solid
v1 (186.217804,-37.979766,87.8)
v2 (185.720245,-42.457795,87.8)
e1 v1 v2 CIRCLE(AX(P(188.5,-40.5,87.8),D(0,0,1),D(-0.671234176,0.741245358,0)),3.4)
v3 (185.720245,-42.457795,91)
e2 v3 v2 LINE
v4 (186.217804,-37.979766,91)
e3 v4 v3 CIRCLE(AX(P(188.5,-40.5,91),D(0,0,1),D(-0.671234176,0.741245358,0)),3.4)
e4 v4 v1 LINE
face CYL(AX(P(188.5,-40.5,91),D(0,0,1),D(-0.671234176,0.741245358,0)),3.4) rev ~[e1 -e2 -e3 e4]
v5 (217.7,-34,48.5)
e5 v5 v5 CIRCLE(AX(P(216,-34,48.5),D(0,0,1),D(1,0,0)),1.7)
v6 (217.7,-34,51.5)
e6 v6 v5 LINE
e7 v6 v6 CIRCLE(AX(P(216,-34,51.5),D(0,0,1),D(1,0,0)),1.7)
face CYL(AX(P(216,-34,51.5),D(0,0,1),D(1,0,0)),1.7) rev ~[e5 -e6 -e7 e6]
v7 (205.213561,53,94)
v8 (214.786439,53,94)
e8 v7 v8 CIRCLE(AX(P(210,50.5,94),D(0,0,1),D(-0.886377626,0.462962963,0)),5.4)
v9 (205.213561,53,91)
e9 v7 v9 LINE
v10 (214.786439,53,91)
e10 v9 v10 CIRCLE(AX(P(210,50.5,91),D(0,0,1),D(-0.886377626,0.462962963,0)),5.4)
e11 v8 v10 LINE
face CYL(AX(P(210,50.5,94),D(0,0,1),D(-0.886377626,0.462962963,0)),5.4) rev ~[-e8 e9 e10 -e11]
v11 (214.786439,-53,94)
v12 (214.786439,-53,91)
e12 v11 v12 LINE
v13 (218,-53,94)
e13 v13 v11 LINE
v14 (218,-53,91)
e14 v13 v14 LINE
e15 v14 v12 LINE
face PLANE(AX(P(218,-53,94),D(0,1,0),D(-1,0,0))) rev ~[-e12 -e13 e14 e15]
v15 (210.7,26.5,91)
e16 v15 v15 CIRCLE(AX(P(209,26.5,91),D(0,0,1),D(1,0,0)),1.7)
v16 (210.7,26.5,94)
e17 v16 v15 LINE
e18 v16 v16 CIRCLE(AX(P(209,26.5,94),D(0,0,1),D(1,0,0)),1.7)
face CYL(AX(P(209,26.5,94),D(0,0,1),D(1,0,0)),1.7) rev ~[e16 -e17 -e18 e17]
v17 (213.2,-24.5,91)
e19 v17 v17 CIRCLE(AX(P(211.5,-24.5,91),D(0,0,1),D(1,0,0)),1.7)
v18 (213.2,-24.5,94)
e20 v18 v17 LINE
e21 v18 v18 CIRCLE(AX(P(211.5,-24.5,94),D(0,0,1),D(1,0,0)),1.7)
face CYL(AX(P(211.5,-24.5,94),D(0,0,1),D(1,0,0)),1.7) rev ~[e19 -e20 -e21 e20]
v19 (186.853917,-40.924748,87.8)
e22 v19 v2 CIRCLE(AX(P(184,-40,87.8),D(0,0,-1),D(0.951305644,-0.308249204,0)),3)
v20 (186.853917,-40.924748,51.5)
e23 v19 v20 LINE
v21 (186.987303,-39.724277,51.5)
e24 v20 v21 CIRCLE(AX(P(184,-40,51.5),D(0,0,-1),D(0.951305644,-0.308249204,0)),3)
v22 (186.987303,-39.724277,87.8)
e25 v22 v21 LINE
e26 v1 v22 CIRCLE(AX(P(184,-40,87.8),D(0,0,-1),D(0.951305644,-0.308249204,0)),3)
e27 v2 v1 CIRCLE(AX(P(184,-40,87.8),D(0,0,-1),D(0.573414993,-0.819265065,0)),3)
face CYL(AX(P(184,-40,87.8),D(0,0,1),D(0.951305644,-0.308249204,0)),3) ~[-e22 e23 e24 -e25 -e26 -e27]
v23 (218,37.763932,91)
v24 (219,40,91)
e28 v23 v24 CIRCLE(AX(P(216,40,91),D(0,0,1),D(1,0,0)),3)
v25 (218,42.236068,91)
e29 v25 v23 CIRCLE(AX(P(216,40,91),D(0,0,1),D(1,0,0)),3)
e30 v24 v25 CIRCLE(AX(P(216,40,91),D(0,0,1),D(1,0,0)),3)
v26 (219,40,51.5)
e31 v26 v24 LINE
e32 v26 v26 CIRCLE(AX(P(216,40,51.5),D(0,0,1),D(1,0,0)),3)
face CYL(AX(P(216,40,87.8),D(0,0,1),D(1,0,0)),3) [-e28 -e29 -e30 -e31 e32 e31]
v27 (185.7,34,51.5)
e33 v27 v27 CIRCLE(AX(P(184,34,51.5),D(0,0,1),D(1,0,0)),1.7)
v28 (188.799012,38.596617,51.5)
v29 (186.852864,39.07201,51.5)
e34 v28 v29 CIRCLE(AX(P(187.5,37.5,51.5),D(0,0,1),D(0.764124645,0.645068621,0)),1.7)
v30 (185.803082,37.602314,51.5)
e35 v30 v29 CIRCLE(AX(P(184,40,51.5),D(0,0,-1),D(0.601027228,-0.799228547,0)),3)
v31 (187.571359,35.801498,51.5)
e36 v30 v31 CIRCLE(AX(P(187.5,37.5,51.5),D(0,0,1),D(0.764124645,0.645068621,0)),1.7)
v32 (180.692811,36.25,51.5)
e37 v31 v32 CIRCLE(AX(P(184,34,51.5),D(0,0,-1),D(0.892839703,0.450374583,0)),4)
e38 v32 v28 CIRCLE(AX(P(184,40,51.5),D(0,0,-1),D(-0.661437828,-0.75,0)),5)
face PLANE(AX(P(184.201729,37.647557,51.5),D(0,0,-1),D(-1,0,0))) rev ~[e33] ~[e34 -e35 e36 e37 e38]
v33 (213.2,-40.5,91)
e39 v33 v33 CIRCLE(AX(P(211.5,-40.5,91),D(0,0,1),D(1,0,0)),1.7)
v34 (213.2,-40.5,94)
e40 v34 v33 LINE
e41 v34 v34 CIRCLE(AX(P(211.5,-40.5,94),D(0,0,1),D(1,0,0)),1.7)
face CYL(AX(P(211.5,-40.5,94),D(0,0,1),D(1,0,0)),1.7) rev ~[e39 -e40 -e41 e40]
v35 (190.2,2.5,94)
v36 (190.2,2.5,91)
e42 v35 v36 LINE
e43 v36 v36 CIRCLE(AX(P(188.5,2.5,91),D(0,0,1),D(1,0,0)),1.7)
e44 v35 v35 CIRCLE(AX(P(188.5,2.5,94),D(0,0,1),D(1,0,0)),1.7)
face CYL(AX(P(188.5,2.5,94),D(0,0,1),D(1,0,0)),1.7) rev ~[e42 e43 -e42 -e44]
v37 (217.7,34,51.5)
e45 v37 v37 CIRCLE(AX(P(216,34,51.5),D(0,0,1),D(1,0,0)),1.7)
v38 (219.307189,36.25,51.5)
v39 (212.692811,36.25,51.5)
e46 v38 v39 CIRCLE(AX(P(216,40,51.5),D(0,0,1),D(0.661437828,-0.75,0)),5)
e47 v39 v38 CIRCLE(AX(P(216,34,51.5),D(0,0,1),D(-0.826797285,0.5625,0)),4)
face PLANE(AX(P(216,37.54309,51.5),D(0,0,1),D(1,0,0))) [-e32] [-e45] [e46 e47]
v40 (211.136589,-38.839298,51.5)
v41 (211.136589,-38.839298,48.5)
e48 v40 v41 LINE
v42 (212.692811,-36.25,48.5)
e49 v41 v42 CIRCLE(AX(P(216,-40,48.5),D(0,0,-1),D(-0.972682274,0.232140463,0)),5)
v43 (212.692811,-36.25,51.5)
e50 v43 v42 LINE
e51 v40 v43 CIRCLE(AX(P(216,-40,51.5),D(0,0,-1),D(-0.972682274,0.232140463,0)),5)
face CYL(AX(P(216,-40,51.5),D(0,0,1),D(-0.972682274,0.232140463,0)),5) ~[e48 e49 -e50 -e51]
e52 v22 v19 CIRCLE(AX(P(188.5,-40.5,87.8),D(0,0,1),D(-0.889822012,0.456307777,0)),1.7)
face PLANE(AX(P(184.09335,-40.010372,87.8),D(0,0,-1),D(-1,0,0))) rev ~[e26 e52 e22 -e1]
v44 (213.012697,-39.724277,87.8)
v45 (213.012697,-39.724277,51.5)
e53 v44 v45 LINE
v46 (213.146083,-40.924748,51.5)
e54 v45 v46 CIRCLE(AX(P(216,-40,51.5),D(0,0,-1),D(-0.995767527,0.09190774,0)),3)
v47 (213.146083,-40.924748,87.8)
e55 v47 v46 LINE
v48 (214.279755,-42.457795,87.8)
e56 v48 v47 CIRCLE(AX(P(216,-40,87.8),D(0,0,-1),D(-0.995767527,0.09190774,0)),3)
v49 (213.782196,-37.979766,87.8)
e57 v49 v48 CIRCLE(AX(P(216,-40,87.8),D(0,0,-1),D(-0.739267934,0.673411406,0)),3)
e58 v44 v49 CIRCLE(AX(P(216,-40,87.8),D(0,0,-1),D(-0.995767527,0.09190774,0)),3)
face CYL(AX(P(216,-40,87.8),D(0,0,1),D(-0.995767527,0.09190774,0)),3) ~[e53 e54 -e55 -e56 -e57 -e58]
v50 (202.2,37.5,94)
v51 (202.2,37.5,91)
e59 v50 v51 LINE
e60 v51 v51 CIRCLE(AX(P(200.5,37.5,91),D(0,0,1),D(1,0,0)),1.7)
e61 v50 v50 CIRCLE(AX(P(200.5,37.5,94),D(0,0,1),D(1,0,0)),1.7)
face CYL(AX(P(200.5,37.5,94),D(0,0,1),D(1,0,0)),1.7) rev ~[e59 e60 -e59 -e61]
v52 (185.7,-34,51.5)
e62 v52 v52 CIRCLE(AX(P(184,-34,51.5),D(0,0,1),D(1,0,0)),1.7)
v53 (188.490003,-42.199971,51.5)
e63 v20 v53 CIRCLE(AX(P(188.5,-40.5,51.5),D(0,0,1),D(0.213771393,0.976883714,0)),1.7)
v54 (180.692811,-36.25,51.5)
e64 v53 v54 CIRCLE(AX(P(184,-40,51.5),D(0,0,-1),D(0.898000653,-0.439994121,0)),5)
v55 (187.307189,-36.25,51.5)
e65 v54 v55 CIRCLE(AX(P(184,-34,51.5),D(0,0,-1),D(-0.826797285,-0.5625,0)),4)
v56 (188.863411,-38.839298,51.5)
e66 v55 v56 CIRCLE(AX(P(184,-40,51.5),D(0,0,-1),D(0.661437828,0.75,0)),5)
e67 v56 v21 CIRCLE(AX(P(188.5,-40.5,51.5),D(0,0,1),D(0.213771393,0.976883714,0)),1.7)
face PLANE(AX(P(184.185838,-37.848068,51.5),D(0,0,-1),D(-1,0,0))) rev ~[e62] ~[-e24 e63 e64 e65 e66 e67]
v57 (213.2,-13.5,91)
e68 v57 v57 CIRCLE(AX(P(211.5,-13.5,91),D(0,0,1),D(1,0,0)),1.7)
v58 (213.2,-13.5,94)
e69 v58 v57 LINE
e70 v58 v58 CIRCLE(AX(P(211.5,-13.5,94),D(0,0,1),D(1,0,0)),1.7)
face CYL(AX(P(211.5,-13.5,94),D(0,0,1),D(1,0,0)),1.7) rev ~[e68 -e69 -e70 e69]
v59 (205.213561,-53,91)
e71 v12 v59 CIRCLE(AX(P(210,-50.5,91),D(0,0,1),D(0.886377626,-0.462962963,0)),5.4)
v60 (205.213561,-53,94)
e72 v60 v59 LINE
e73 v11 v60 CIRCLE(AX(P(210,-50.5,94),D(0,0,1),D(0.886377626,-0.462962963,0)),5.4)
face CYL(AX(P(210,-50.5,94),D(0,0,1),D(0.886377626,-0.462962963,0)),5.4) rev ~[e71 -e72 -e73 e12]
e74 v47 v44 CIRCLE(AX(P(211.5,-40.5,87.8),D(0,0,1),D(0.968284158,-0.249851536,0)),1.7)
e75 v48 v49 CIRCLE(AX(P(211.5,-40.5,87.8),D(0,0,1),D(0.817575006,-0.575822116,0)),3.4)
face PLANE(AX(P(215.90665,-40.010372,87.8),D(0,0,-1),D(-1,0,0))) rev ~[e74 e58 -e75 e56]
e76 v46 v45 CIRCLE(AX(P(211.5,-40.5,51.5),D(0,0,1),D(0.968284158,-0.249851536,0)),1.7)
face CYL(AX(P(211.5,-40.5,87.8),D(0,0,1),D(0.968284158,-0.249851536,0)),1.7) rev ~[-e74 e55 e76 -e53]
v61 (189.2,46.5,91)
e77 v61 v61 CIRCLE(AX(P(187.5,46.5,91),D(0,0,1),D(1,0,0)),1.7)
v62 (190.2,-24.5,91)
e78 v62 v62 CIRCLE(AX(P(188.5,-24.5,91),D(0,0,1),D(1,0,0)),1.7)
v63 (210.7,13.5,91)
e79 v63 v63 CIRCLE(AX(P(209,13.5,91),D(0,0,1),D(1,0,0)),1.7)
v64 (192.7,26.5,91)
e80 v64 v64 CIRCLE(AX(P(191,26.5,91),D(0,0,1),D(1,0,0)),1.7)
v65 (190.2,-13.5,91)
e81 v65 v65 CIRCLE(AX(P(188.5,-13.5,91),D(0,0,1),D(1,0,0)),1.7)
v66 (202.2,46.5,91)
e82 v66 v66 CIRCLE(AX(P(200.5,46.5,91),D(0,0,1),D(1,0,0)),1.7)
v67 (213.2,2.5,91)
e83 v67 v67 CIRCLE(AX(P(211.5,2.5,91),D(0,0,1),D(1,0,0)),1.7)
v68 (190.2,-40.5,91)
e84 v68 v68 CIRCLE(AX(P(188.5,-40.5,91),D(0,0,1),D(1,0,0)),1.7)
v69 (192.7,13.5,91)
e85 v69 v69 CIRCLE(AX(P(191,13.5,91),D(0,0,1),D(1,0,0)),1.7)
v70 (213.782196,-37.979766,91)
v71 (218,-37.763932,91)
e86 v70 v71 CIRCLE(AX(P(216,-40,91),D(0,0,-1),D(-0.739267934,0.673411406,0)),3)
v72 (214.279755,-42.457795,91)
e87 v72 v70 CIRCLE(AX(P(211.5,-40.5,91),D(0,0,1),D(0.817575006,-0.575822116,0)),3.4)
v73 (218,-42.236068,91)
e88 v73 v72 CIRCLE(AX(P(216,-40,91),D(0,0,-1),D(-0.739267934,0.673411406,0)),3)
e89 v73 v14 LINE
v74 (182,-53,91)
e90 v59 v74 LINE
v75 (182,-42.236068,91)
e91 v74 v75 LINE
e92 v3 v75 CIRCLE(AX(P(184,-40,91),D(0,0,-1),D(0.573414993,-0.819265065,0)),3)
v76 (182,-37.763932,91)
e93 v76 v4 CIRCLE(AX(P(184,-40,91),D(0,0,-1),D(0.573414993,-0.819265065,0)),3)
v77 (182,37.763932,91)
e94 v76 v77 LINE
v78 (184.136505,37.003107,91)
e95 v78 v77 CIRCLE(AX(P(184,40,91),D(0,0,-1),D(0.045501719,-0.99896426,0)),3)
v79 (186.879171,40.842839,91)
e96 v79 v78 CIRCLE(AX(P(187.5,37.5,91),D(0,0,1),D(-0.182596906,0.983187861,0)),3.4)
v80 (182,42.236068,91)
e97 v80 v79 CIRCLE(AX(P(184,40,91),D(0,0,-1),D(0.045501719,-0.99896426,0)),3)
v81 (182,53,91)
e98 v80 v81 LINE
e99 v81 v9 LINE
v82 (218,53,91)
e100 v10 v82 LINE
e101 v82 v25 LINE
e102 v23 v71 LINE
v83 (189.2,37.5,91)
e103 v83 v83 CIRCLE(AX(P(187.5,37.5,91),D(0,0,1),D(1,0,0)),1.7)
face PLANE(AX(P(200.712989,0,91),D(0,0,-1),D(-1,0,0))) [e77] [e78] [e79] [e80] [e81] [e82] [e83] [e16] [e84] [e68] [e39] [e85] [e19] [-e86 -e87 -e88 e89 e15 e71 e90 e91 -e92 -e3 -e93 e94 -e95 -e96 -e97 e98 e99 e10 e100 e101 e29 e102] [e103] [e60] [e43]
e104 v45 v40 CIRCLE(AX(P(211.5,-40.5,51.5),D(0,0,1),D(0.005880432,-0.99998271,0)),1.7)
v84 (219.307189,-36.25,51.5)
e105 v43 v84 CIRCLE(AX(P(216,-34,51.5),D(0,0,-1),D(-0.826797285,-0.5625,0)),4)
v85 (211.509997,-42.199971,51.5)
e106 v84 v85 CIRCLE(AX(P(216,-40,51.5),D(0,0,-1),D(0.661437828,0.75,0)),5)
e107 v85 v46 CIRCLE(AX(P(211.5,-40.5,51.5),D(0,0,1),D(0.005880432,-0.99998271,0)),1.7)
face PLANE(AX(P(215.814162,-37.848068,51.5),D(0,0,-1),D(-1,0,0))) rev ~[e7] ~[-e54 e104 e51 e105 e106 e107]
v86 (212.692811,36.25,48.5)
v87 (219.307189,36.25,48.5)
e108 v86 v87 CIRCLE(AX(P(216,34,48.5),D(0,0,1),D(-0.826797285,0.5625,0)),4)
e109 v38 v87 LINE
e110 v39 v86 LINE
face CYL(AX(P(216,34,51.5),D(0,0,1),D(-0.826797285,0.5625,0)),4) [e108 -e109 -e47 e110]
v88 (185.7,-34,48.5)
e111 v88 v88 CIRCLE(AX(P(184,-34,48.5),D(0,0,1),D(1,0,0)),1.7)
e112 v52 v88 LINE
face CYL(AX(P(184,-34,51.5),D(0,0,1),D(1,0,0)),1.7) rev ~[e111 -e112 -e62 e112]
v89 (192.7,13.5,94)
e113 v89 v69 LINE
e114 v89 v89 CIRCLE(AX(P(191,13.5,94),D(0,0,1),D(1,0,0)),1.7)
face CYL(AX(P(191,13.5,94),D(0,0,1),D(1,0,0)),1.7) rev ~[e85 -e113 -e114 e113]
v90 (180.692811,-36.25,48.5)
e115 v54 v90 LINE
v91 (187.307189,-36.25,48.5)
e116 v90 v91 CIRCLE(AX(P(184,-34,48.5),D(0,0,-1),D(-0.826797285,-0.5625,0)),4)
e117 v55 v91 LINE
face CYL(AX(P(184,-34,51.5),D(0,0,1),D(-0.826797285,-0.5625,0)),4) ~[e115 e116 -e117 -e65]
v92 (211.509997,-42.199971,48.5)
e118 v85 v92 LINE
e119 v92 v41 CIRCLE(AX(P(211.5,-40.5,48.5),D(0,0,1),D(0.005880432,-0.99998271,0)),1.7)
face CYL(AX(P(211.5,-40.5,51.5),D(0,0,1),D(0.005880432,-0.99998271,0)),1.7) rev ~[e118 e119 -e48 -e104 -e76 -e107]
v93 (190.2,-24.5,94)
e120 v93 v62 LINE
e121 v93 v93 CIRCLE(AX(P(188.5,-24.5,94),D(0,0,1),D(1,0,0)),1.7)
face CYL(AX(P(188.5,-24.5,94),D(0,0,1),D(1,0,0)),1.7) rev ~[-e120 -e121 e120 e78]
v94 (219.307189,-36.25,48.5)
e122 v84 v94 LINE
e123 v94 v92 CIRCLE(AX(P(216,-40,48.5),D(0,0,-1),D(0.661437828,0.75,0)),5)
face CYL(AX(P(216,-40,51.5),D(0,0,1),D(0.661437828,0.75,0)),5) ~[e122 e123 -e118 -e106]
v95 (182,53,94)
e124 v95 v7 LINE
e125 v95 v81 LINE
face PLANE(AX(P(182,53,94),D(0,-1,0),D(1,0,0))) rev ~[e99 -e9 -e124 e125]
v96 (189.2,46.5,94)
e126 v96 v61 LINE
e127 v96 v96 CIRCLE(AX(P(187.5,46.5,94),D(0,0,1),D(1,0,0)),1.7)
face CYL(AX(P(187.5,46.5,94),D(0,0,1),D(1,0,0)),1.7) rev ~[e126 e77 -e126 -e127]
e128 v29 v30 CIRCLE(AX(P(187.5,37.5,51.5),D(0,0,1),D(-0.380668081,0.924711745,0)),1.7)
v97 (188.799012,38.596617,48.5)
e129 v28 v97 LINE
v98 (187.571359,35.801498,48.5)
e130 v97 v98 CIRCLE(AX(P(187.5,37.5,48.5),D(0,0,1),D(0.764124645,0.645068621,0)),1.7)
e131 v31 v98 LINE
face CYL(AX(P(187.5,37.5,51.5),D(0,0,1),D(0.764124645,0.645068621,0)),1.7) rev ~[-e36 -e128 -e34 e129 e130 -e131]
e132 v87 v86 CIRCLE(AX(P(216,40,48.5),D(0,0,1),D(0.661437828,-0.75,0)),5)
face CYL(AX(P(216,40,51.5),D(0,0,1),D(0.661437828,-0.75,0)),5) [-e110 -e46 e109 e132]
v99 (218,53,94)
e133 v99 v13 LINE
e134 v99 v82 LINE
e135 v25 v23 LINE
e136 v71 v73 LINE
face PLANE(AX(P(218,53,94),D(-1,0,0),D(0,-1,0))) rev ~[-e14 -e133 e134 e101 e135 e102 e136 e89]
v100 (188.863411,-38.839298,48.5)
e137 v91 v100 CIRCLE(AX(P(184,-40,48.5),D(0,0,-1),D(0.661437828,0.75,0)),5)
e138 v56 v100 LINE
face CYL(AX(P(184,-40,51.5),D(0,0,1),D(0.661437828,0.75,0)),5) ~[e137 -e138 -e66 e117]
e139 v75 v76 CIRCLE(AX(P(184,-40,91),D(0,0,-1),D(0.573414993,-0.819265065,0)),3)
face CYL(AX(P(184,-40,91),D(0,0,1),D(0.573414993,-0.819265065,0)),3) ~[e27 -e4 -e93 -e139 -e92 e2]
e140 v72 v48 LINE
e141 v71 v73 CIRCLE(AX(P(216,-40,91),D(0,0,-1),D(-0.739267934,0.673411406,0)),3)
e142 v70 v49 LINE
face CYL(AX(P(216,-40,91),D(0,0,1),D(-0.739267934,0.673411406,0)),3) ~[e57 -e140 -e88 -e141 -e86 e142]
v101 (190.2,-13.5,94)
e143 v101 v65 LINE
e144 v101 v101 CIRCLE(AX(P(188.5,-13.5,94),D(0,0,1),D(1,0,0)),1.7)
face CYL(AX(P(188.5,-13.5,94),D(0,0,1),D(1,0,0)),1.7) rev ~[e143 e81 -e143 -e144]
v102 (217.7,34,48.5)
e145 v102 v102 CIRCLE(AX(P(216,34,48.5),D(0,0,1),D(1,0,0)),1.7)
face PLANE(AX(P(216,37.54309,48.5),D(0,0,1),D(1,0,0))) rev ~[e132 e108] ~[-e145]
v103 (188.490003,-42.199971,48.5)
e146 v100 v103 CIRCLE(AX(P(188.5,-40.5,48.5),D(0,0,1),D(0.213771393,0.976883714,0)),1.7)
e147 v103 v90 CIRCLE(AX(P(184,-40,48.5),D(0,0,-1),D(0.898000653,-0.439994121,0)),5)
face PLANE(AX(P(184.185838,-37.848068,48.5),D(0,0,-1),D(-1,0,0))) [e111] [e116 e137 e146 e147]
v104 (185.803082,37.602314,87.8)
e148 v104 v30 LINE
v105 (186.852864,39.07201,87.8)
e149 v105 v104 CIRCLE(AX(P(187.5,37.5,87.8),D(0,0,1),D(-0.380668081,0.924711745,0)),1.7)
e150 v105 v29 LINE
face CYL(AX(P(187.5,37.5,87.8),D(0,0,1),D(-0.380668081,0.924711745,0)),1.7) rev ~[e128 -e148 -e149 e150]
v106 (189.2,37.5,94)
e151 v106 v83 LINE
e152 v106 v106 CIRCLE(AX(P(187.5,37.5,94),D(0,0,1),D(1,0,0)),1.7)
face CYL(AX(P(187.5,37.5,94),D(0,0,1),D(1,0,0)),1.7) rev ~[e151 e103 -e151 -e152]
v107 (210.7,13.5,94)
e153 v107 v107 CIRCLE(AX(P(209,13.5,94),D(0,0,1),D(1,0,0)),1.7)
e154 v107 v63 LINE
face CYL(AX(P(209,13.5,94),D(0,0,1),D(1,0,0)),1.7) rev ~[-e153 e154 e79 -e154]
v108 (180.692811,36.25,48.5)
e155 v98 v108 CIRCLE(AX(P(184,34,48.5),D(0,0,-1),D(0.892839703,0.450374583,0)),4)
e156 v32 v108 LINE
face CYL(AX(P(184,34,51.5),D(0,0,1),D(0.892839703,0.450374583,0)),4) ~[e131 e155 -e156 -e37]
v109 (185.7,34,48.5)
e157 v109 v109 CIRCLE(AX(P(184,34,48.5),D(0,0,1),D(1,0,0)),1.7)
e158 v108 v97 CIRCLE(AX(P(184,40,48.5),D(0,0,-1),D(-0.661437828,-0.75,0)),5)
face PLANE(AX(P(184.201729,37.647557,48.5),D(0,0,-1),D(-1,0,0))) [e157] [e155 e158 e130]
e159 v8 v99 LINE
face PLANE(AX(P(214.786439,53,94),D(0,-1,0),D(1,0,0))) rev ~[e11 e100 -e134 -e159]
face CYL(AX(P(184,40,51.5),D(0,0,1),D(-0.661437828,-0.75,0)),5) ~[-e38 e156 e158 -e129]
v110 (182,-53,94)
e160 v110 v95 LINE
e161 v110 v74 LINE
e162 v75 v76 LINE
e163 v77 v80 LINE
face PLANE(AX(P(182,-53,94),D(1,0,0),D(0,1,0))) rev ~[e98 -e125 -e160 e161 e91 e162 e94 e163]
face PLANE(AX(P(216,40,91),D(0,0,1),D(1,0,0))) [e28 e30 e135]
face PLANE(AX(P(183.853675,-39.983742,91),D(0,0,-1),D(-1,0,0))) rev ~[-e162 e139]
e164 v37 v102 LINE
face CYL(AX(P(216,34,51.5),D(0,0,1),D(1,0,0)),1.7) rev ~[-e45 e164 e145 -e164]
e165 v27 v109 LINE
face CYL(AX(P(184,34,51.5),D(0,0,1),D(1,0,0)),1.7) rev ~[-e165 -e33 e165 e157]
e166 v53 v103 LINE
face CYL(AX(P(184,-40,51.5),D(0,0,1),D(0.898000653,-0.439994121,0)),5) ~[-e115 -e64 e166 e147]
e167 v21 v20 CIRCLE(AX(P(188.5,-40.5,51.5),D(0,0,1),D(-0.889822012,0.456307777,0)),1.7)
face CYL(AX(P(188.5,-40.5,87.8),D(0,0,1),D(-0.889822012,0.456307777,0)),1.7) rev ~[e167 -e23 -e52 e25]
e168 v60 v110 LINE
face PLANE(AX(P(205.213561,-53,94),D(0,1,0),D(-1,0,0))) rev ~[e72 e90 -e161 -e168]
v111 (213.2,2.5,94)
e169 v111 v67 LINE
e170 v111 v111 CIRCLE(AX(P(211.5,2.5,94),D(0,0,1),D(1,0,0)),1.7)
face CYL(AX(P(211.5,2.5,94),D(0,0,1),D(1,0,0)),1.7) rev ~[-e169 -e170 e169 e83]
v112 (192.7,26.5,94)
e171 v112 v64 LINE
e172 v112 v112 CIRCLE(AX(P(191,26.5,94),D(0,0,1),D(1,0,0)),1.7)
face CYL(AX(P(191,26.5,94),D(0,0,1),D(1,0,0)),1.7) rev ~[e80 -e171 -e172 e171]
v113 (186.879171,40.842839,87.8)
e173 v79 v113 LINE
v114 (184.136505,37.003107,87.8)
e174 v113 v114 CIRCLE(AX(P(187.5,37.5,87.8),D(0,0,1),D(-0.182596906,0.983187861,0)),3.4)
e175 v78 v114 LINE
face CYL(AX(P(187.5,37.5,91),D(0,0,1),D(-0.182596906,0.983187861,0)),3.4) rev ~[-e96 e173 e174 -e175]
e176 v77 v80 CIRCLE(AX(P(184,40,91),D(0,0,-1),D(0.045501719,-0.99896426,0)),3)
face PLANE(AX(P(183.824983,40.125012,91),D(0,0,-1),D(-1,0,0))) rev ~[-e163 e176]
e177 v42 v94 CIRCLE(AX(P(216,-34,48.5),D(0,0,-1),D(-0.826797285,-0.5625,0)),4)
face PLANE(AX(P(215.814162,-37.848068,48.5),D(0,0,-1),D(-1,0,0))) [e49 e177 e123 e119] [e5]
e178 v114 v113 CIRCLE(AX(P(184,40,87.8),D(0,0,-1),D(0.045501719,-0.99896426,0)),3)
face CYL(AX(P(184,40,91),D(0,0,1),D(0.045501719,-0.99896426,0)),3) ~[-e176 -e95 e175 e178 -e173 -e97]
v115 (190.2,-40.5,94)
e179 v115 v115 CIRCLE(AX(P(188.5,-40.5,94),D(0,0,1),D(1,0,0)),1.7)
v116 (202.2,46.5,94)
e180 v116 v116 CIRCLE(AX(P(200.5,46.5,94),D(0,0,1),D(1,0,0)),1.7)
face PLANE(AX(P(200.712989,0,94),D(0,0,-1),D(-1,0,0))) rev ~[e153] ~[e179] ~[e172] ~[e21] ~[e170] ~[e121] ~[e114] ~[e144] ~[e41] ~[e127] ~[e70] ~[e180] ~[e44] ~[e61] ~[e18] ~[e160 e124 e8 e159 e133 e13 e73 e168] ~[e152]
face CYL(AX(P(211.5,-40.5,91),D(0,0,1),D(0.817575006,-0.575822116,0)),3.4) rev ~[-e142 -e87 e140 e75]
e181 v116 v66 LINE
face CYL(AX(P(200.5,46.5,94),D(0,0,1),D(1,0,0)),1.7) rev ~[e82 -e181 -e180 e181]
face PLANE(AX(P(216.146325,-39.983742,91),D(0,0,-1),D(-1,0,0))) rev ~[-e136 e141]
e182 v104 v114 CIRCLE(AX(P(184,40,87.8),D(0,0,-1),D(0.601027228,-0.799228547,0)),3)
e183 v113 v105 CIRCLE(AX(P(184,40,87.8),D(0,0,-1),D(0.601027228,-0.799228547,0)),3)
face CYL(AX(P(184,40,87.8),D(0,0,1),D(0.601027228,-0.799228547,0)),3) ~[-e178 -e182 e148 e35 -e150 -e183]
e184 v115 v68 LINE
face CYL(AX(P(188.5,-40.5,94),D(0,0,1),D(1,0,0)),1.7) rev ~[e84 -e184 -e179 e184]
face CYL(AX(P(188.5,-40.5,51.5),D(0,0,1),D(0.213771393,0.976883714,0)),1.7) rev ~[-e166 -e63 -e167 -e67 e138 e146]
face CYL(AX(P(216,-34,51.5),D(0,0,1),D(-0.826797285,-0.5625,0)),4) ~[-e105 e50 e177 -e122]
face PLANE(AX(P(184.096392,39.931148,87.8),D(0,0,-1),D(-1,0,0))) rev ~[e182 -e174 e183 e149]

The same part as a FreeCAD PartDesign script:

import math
import FreeCAD as App
import Part
import Sketcher

doc = App.newDocument("Part")
params = doc.addObject("Spreadsheet::Sheet", "Params")
for row, (alias, value) in enumerate([
    ("sketch1_diameter", "3.4 mm"),
    ("sketch1_radius", "5.4 mm"),
    ("sketch1_height", "106 mm"),
    ("pad1_length", "3 mm"),
    ("sketch2_diameter", "6 mm"),
    ("sketch2_radius", "3.4 mm"),
    ("pad2_length", "3.2 mm"),
    ("sketch3_diameter", "6 mm"),
    ("sketch3_radius", "1.7 mm"),
    ("pad3_length", "36.3 mm"),
    ("sketch4_radius", "5 mm"),
    ("sketch4_radius2", "4 mm"),
    ("sketch4_diameter", "3.4 mm"),
    ("pad4_length", "3 mm"),
], start=1):
    params.set(f"A{row}", alias)
    params.set(f"B{row}", "=" + value)
    params.setAlias(f"B{row}", alias)

body = doc.addObject("PartDesign::Body", "Body")

sketch1 = doc.addObject("Sketcher::SketchObject", "Sketch")
body.addObject(sketch1)
sketch1.AttachmentSupport = (doc.XY_Plane, [""])
sketch1.MapMode = "FlatFace"
sketch1.AttachmentOffset = App.Placement(App.Vector(0, 0, 94), App.Rotation())
sketch1.addGeometry(Part.LineSegment(App.Vector(205.213561, 53, 0), App.Vector(182, 53, 0)), False)
sketch1.addGeometry(Part.LineSegment(App.Vector(182, 53, 0), App.Vector(182, -53, 0)), False)
sketch1.addGeometry(Part.LineSegment(App.Vector(182, -53, 0), App.Vector(205.213561, -53, 0)), False)
sketch1.addGeometry(Part.ArcOfCircle(Part.Circle(App.Vector(210, -50.5, 0), App.Vector(0, 0, 1), 5.4), math.radians(-27.578468), math.radians(207.578468)), False)
sketch1.addGeometry(Part.LineSegment(App.Vector(214.786439, -53, 0), App.Vector(218, -53, 0)), False)
sketch1.addGeometry(Part.LineSegment(App.Vector(218, -53, 0), App.Vector(218, 53, 0)), False)
sketch1.addGeometry(Part.LineSegment(App.Vector(218, 53, 0), App.Vector(214.786439, 53, 0)), False)
sketch1.addGeometry(Part.ArcOfCircle(Part.Circle(App.Vector(210, 50.5, 0), App.Vector(0, 0, 1), 5.4), math.radians(152.421532), math.radians(387.578468)), False)
sketch1.addGeometry(Part.Circle(App.Vector(211.5, -40.5, 0), App.Vector(0, 0, 1), 1.7), False)
sketch1.addGeometry(Part.Circle(App.Vector(211.5, -24.5, 0), App.Vector(0, 0, 1), 1.7), False)
sketch1.addGeometry(Part.Circle(App.Vector(211.5, -13.5, 0), App.Vector(0, 0, 1), 1.7), False)
sketch1.addGeometry(Part.Circle(App.Vector(211.5, 2.5, 0), App.Vector(0, 0, 1), 1.7), False)
sketch1.addGeometry(Part.Circle(App.Vector(188.5, -40.5, 0), App.Vector(0, 0, 1), 1.7), False)
sketch1.addGeometry(Part.Circle(App.Vector(188.5, -24.5, 0), App.Vector(0, 0, 1), 1.7), False)
sketch1.addGeometry(Part.Circle(App.Vector(188.5, -13.5, 0), App.Vector(0, 0, 1), 1.7), False)
sketch1.addGeometry(Part.Circle(App.Vector(188.5, 2.5, 0), App.Vector(0, 0, 1), 1.7), False)
sketch1.addGeometry(Part.Circle(App.Vector(209, 13.5, 0), App.Vector(0, 0, 1), 1.7), False)
sketch1.addGeometry(Part.Circle(App.Vector(209, 26.5, 0), App.Vector(0, 0, 1), 1.7), False)
sketch1.addGeometry(Part.Circle(App.Vector(200.5, 37.5, 0), App.Vector(0, 0, 1), 1.7), False)
sketch1.addGeometry(Part.Circle(App.Vector(200.5, 46.5, 0), App.Vector(0, 0, 1), 1.7), False)
sketch1.addGeometry(Part.Circle(App.Vector(191, 13.5, 0), App.Vector(0, 0, 1), 1.7), False)
sketch1.addGeometry(Part.Circle(App.Vector(191, 26.5, 0), App.Vector(0, 0, 1), 1.7), False)
sketch1.addGeometry(Part.Circle(App.Vector(187.5, 37.5, 0), App.Vector(0, 0, 1), 1.7), False)
sketch1.addGeometry(Part.Circle(App.Vector(187.5, 46.5, 0), App.Vector(0, 0, 1), 1.7), False)
sketch1.addConstraint(Sketcher.Constraint("Coincident", 0, 2, 1, 1))
sketch1.addConstraint(Sketcher.Constraint("Coincident", 1, 2, 2, 1))
sketch1.addConstraint(Sketcher.Constraint("Coincident", 2, 2, 3, 2))
sketch1.addConstraint(Sketcher.Constraint("Coincident", 3, 1, 4, 1))
sketch1.addConstraint(Sketcher.Constraint("Coincident", 4, 2, 5, 1))
sketch1.addConstraint(Sketcher.Constraint("Coincident", 5, 2, 6, 1))
sketch1.addConstraint(Sketcher.Constraint("Coincident", 6, 2, 7, 2))
sketch1.addConstraint(Sketcher.Constraint("Coincident", 7, 1, 0, 1))
sketch1.addConstraint(Sketcher.Constraint("Horizontal", 0))
sketch1.addConstraint(Sketcher.Constraint("Vertical", 1))
sketch1.addConstraint(Sketcher.Constraint("Horizontal", 2))
sketch1.addConstraint(Sketcher.Constraint("Horizontal", 4))
sketch1.addConstraint(Sketcher.Constraint("Vertical", 5))
sketch1.addConstraint(Sketcher.Constraint("Horizontal", 6))
sketch1.addConstraint(Sketcher.Constraint("Equal", 3, 7))
sketch1.addConstraint(Sketcher.Constraint("Equal", 8, 9))
sketch1.addConstraint(Sketcher.Constraint("Equal", 9, 10))
sketch1.addConstraint(Sketcher.Constraint("Equal", 10, 11))
sketch1.addConstraint(Sketcher.Constraint("Equal", 11, 12))
sketch1.addConstraint(Sketcher.Constraint("Equal", 12, 13))
sketch1.addConstraint(Sketcher.Constraint("Equal", 13, 14))
sketch1.addConstraint(Sketcher.Constraint("Equal", 14, 15))
sketch1.addConstraint(Sketcher.Constraint("Equal", 15, 16))
sketch1.addConstraint(Sketcher.Constraint("Equal", 16, 17))
sketch1.addConstraint(Sketcher.Constraint("Equal", 17, 18))
sketch1.addConstraint(Sketcher.Constraint("Equal", 18, 19))
sketch1.addConstraint(Sketcher.Constraint("Equal", 19, 20))
sketch1.addConstraint(Sketcher.Constraint("Equal", 20, 21))
sketch1.addConstraint(Sketcher.Constraint("Equal", 21, 22))
sketch1.addConstraint(Sketcher.Constraint("Equal", 22, 23))
sketch1.addConstraint(Sketcher.Constraint("Symmetric", 3, 3, 7, 3, -1))
sketch1.addConstraint(Sketcher.Constraint("Horizontal", 8, 3, 12, 3))
sketch1.addConstraint(Sketcher.Constraint("Horizontal", 9, 3, 13, 3))
sketch1.addConstraint(Sketcher.Constraint("Horizontal", 10, 3, 14, 3))
sketch1.addConstraint(Sketcher.Constraint("Horizontal", 11, 3, 15, 3))
sketch1.addConstraint(Sketcher.Constraint("Horizontal", 16, 3, 20, 3))
sketch1.addConstraint(Sketcher.Constraint("Horizontal", 17, 3, 21, 3))
sketch1.addConstraint(Sketcher.Constraint("Horizontal", 18, 3, 22, 3))
sketch1.addConstraint(Sketcher.Constraint("Horizontal", 19, 3, 23, 3))
sketch1.addConstraint(Sketcher.Constraint("Horizontal", 2, 2, 3, 1))
sketch1.addConstraint(Sketcher.Constraint("Horizontal", 0, 2, 5, 2))
sketch1.addConstraint(Sketcher.Constraint("Vertical", 8, 3, 9, 3))
sketch1.addConstraint(Sketcher.Constraint("Vertical", 9, 3, 10, 3))
sketch1.addConstraint(Sketcher.Constraint("Vertical", 10, 3, 11, 3))
sketch1.addConstraint(Sketcher.Constraint("Vertical", 12, 3, 13, 3))
sketch1.addConstraint(Sketcher.Constraint("Vertical", 13, 3, 14, 3))
sketch1.addConstraint(Sketcher.Constraint("Vertical", 14, 3, 15, 3))
sketch1.addConstraint(Sketcher.Constraint("Vertical", 16, 3, 17, 3))
sketch1.addConstraint(Sketcher.Constraint("Vertical", 18, 3, 19, 3))
sketch1.addConstraint(Sketcher.Constraint("Vertical", 20, 3, 21, 3))
sketch1.addConstraint(Sketcher.Constraint("Vertical", 22, 3, 23, 3))
sketch1.addConstraint(Sketcher.Constraint("Vertical", 3, 1, 6, 2))
sketch1.addConstraint(Sketcher.Constraint("Diameter", 8, 3.4))
sketch1.addConstraint(Sketcher.Constraint("Radius", 3, 5.4))
sketch1.addConstraint(Sketcher.Constraint("DistanceY", 1, 2, 1, 1, 106.0))
sketch1.addConstraint(Sketcher.Constraint("DistanceX", -1, 1, 3, 3, 210.0))
sketch1.addConstraint(Sketcher.Constraint("DistanceX", -1, 1, 16, 3, 209.0))
sketch1.addConstraint(Sketcher.Constraint("DistanceX", -1, 1, 20, 3, 191.0))
sketch1.addConstraint(Sketcher.Constraint("DistanceX", -1, 1, 0, 2, 182.0))
sketch1.addConstraint(Sketcher.Constraint("DistanceX", -1, 1, 4, 2, 218.0))
sketch1.addConstraint(Sketcher.Constraint("DistanceY", 3, 3, 7, 3, 101.0))
sketch1.addConstraint(Sketcher.Constraint("DistanceY", 3, 3, 8, 3, 10.0))
sketch1.addConstraint(Sketcher.Constraint("DistanceY", 8, 3, 9, 3, 16.0))
sketch1.addConstraint(Sketcher.Constraint("DistanceY", 9, 3, 10, 3, 11.0))
sketch1.addConstraint(Sketcher.Constraint("DistanceY", 10, 3, 11, 3, 16.0))
sketch1.addConstraint(Sketcher.Constraint("DistanceX", 12, 3, 8, 3, 23.0))
sketch1.addConstraint(Sketcher.Constraint("DistanceY", 11, 3, 16, 3, 11.0))
sketch1.addConstraint(Sketcher.Constraint("DistanceY", 16, 3, 17, 3, 13.0))
sketch1.addConstraint(Sketcher.Constraint("DistanceY", 17, 3, 18, 3, 11.0))
sketch1.addConstraint(Sketcher.Constraint("DistanceX", 18, 3, 11, 3, 11.0))
sketch1.addConstraint(Sketcher.Constraint("DistanceY", 18, 3, 19, 3, 9.0))
sketch1.addConstraint(Sketcher.Constraint("DistanceX", 22, 3, 18, 3, 13.0))
sketch1.addConstraint(Sketcher.Constraint("DistanceX", -1, 1, 8, 3, 211.5))
sketch1.setExpression("Constraints[52]", "Params.sketch1_diameter")
sketch1.setExpression("Constraints[53]", "Params.sketch1_radius")
sketch1.setExpression("Constraints[54]", "Params.sketch1_height")
pad1 = doc.addObject("PartDesign::Pad", "Pad")
body.addObject(pad1)
pad1.Profile = sketch1
pad1.setExpression("Length", "Params.pad1_length")
pad1.Reversed = True

sketch2 = doc.addObject("Sketcher::SketchObject", "Sketch001")
body.addObject(sketch2)
sketch2.AttachmentSupport = (doc.XY_Plane, [""])
sketch2.MapMode = "FlatFace"
sketch2.AttachmentOffset = App.Placement(App.Vector(0, 0, 91), App.Rotation())
sketch2.addGeometry(Part.Circle(App.Vector(216, 40, 0), App.Vector(0, 0, 1), 3), False)
sketch2.addGeometry(Part.ArcOfCircle(Part.Circle(App.Vector(187.5, 37.5, 0), App.Vector(0, 0, 1), 3.4), math.radians(100.521059), math.radians(188.403585)), False)
sketch2.addGeometry(Part.ArcOfCircle(Part.Circle(App.Vector(184, 40, 0), App.Vector(0, 0, 1), 3), math.radians(16.316688), math.radians(272.607957)), False)
sketch2.addGeometry(Part.ArcOfCircle(Part.Circle(App.Vector(188.5, -40.5, 0), App.Vector(0, 0, 1), 3.4), math.radians(132.162391), math.radians(215.157226)), False)
sketch2.addGeometry(Part.ArcOfCircle(Part.Circle(App.Vector(184, -40, 0), App.Vector(0, 0, 1), 3), math.radians(42.330908), math.radians(304.988709)), False)
sketch2.addGeometry(Part.ArcOfCircle(Part.Circle(App.Vector(211.5, -40.5, 0), App.Vector(0, 0, 1), 3.4), math.radians(-35.157226), math.radians(47.837609)), False)
sketch2.addGeometry(Part.ArcOfCircle(Part.Circle(App.Vector(216, -40, 0), App.Vector(0, 0, 1), 3), math.radians(-124.988709), math.radians(137.669092)), False)
sketch2.addConstraint(Sketcher.Constraint("Coincident", 1, 1, 2, 1))
sketch2.addConstraint(Sketcher.Constraint("Coincident", 2, 2, 1, 2))
sketch2.addConstraint(Sketcher.Constraint("Coincident", 3, 1, 4, 1))
sketch2.addConstraint(Sketcher.Constraint("Coincident", 4, 2, 3, 2))
sketch2.addConstraint(Sketcher.Constraint("Coincident", 5, 1, 6, 1))
sketch2.addConstraint(Sketcher.Constraint("Coincident", 6, 2, 5, 2))
sketch2.addConstraint(Sketcher.Constraint("Equal", 0, 2))
sketch2.addConstraint(Sketcher.Constraint("Equal", 1, 3))
sketch2.addConstraint(Sketcher.Constraint("Equal", 2, 4))
sketch2.addConstraint(Sketcher.Constraint("Equal", 3, 5))
sketch2.addConstraint(Sketcher.Constraint("Equal", 4, 6))
sketch2.addConstraint(Sketcher.Constraint("Symmetric", 2, 3, 4, 3, -1))
sketch2.addConstraint(Sketcher.Constraint("Symmetric", 0, 3, 6, 3, -1))
sketch2.addConstraint(Sketcher.Constraint("Horizontal", 0, 3, 2, 3))
sketch2.addConstraint(Sketcher.Constraint("Horizontal", 3, 3, 5, 3))
sketch2.addConstraint(Sketcher.Constraint("Horizontal", 4, 2, 5, 1))
sketch2.addConstraint(Sketcher.Constraint("Diameter", 0, 6.0))
sketch2.addConstraint(Sketcher.Constraint("Radius", 1, 3.4))
sketch2.addConstraint(Sketcher.Constraint("DistanceX", -1, 1, 0, 3, 216.0))
sketch2.addConstraint(Sketcher.Constraint("DistanceY", -1, 1, 0, 3, 40.0))
sketch2.addConstraint(Sketcher.Constraint("DistanceX", -1, 1, 2, 3, 184.0))
sketch2.addConstraint(Sketcher.Constraint("DistanceX", 1, 3, 3, 3, 1.0))
sketch2.addConstraint(Sketcher.Constraint("DistanceY", 3, 3, 1, 3, 78.0))
sketch2.addConstraint(Sketcher.Constraint("DistanceX", 3, 3, 5, 3, 23.0))
sketch2.addConstraint(Sketcher.Constraint("DistanceY", -1, 1, 1, 3, 37.5))
sketch2.setExpression("Constraints[16]", "Params.sketch2_diameter")
sketch2.setExpression("Constraints[17]", "Params.sketch2_radius")
pad2 = doc.addObject("PartDesign::Pad", "Pad001")
body.addObject(pad2)
pad2.Profile = sketch2
pad2.setExpression("Length", "Params.pad2_length")
pad2.Reversed = True

sketch3 = doc.addObject("Sketcher::SketchObject", "Sketch002")
body.addObject(sketch3)
sketch3.AttachmentSupport = (doc.XY_Plane, [""])
sketch3.MapMode = "FlatFace"
sketch3.AttachmentOffset = App.Placement(App.Vector(0, 0, 87.8), App.Rotation())
sketch3.addGeometry(Part.Circle(App.Vector(216, 40, 0), App.Vector(0, 0, 1), 3), False)
sketch3.addGeometry(Part.ArcOfCircle(Part.Circle(App.Vector(187.5, 37.5, 0), App.Vector(0, 0, 1), 1.7), math.radians(112.375071), math.radians(176.549573)), False)
sketch3.addGeometry(Part.ArcOfCircle(Part.Circle(App.Vector(184, 40, 0), App.Vector(0, 0, 1), 3), math.radians(-18.018858), math.radians(306.943503)), False)
sketch3.addGeometry(Part.ArcOfCircle(Part.Circle(App.Vector(188.5, -40.5, 0), App.Vector(0, 0, 1), 1.7), math.radians(152.850889), math.radians(194.468727)), False)
sketch3.addGeometry(Part.ArcOfCircle(Part.Circle(App.Vector(184, -40, 0), App.Vector(0, 0, 1), 3), math.radians(5.273368), math.radians(342.046249)), False)
sketch3.addGeometry(Part.ArcOfCircle(Part.Circle(App.Vector(211.5, -40.5, 0), App.Vector(0, 0, 1), 1.7), math.radians(-14.468727), math.radians(27.149111)), False)
sketch3.addGeometry(Part.ArcOfCircle(Part.Circle(App.Vector(216, -40, 0), App.Vector(0, 0, 1), 3), math.radians(-162.046249), math.radians(174.726632)), False)
sketch3.addConstraint(Sketcher.Constraint("Coincident", 1, 1, 2, 1))
sketch3.addConstraint(Sketcher.Constraint("Coincident", 2, 2, 1, 2))
sketch3.addConstraint(Sketcher.Constraint("Coincident", 3, 1, 4, 1))
sketch3.addConstraint(Sketcher.Constraint("Coincident", 4, 2, 3, 2))
sketch3.addConstraint(Sketcher.Constraint("Coincident", 5, 1, 6, 1))
sketch3.addConstraint(Sketcher.Constraint("Coincident", 6, 2, 5, 2))
sketch3.addConstraint(Sketcher.Constraint("Equal", 0, 2))
sketch3.addConstraint(Sketcher.Constraint("Equal", 1, 3))
sketch3.addConstraint(Sketcher.Constraint("Equal", 2, 4))
sketch3.addConstraint(Sketcher.Constraint("Equal", 3, 5))
sketch3.addConstraint(Sketcher.Constraint("Equal", 4, 6))
sketch3.addConstraint(Sketcher.Constraint("Symmetric", 2, 3, 4, 3, -1))
sketch3.addConstraint(Sketcher.Constraint("Symmetric", 0, 3, 6, 3, -1))
sketch3.addConstraint(Sketcher.Constraint("Horizontal", 0, 3, 2, 3))
sketch3.addConstraint(Sketcher.Constraint("Horizontal", 3, 3, 5, 3))
sketch3.addConstraint(Sketcher.Constraint("Horizontal", 4, 2, 5, 1))
sketch3.addConstraint(Sketcher.Constraint("Diameter", 0, 6.0))
sketch3.addConstraint(Sketcher.Constraint("Radius", 1, 1.7))
sketch3.addConstraint(Sketcher.Constraint("DistanceX", -1, 1, 0, 3, 216.0))
sketch3.addConstraint(Sketcher.Constraint("DistanceY", -1, 1, 0, 3, 40.0))
sketch3.addConstraint(Sketcher.Constraint("DistanceX", -1, 1, 2, 3, 184.0))
sketch3.addConstraint(Sketcher.Constraint("DistanceX", 1, 3, 3, 3, 1.0))
sketch3.addConstraint(Sketcher.Constraint("DistanceY", 3, 3, 1, 3, 78.0))
sketch3.addConstraint(Sketcher.Constraint("DistanceX", 3, 3, 5, 3, 23.0))
sketch3.addConstraint(Sketcher.Constraint("DistanceY", -1, 1, 1, 3, 37.5))
sketch3.setExpression("Constraints[16]", "Params.sketch3_diameter")
sketch3.setExpression("Constraints[17]", "Params.sketch3_radius")
pad3 = doc.addObject("PartDesign::Pad", "Pad002")
body.addObject(pad3)
pad3.Profile = sketch3
pad3.setExpression("Length", "Params.pad3_length")
pad3.Reversed = True

sketch4 = doc.addObject("Sketcher::SketchObject", "Sketch003")
body.addObject(sketch4)
sketch4.AttachmentSupport = (doc.XY_Plane, [""])
sketch4.MapMode = "FlatFace"
sketch4.AttachmentOffset = App.Placement(App.Vector(0, 0, 51.5), App.Rotation())
sketch4.addGeometry(Part.ArcOfCircle(Part.Circle(App.Vector(187.5, 37.5, 0), App.Vector(0, 0, 1), 1.7), math.radians(40.170821), math.radians(272.405741)), False)
sketch4.addGeometry(Part.ArcOfCircle(Part.Circle(App.Vector(184, 40, 0), App.Vector(0, 0, 1), 5), math.radians(-16.300595), math.radians(228.590378)), False)
sketch4.addGeometry(Part.ArcOfCircle(Part.Circle(App.Vector(184, 34, 0), App.Vector(0, 0, 1), 4), math.radians(145.771134), math.radians(386.767719)), False)
sketch4.addGeometry(Part.Circle(App.Vector(184, 34, 0), App.Vector(0, 0, 1), 1.7), False)
sketch4.addGeometry(Part.ArcOfCircle(Part.Circle(App.Vector(188.5, -40.5, 0), App.Vector(0, 0, 1), 1.7), math.radians(77.656542), math.radians(269.663074)), False)
sketch4.addGeometry(Part.ArcOfCircle(Part.Circle(App.Vector(184, -40, 0), App.Vector(0, 0, 1), 5), math.radians(13.423123), math.radians(48.590378)), False)
sketch4.addGeometry(Part.ArcOfCircle(Part.Circle(App.Vector(184, -34, 0), App.Vector(0, 0, 1), 4), math.radians(-34.228866), math.radians(214.228866)), False)
sketch4.addGeometry(Part.ArcOfCircle(Part.Circle(App.Vector(184, -40, 0), App.Vector(0, 0, 1), 5), math.radians(131.409622), math.radians(333.896494)), False)
sketch4.addGeometry(Part.Circle(App.Vector(184, -34, 0), App.Vector(0, 0, 1), 1.7), False)
sketch4.addGeometry(Part.ArcOfCircle(Part.Circle(App.Vector(211.5, -40.5, 0), App.Vector(0, 0, 1), 1.7), math.radians(-89.663074), math.radians(102.343458)), False)
sketch4.addGeometry(Part.ArcOfCircle(Part.Circle(App.Vector(216, -40, 0), App.Vector(0, 0, 1), 5), math.radians(-153.896494), math.radians(48.590378)), False)
sketch4.addGeometry(Part.ArcOfCircle(Part.Circle(App.Vector(216, -34, 0), App.Vector(0, 0, 1), 4), math.radians(-34.228866), math.radians(214.228866)), False)
sketch4.addGeometry(Part.ArcOfCircle(Part.Circle(App.Vector(216, -40, 0), App.Vector(0, 0, 1), 5), math.radians(131.409622), math.radians(166.576877)), False)
sketch4.addGeometry(Part.Circle(App.Vector(216, -34, 0), App.Vector(0, 0, 1), 1.7), False)
sketch4.addGeometry(Part.ArcOfCircle(Part.Circle(App.Vector(216, 34, 0), App.Vector(0, 0, 1), 4), math.radians(145.771134), math.radians(394.228866)), False)
sketch4.addGeometry(Part.ArcOfCircle(Part.Circle(App.Vector(216, 40, 0), App.Vector(0, 0, 1), 5), math.radians(-48.590378), math.radians(228.590378)), False)
sketch4.addGeometry(Part.Circle(App.Vector(216, 34, 0), App.Vector(0, 0, 1), 1.7), False)
sketch4.addConstraint(Sketcher.Constraint("Coincident", 0, 1, 1, 1))
sketch4.addConstraint(Sketcher.Constraint("Coincident", 1, 2, 2, 1))
sketch4.addConstraint(Sketcher.Constraint("Coincident", 2, 2, 0, 2))
sketch4.addConstraint(Sketcher.Constraint("Coincident", 4, 1, 5, 1))
sketch4.addConstraint(Sketcher.Constraint("Coincident", 5, 2, 6, 1))
sketch4.addConstraint(Sketcher.Constraint("Coincident", 6, 2, 7, 1))
sketch4.addConstraint(Sketcher.Constraint("Coincident", 7, 2, 4, 2))
sketch4.addConstraint(Sketcher.Constraint("Coincident", 9, 1, 10, 1))
sketch4.addConstraint(Sketcher.Constraint("Coincident", 10, 2, 11, 1))
sketch4.addConstraint(Sketcher.Constraint("Coincident", 11, 2, 12, 1))
sketch4.addConstraint(Sketcher.Constraint("Coincident", 12, 2, 9, 2))
sketch4.addConstraint(Sketcher.Constraint("Coincident", 14, 1, 15, 2))
sketch4.addConstraint(Sketcher.Constraint("Coincident", 15, 1, 14, 2))
sketch4.addConstraint(Sketcher.Constraint("Coincident", 3, 3, 2, 3))
sketch4.addConstraint(Sketcher.Constraint("Coincident", 7, 3, 5, 3))
sketch4.addConstraint(Sketcher.Constraint("Coincident", 8, 3, 6, 3))
sketch4.addConstraint(Sketcher.Constraint("Coincident", 12, 3, 10, 3))
sketch4.addConstraint(Sketcher.Constraint("Coincident", 13, 3, 11, 3))
sketch4.addConstraint(Sketcher.Constraint("Coincident", 16, 3, 14, 3))
sketch4.addConstraint(Sketcher.Constraint("Equal", 0, 3))
sketch4.addConstraint(Sketcher.Constraint("Equal", 3, 4))
sketch4.addConstraint(Sketcher.Constraint("Equal", 1, 5))
sketch4.addConstraint(Sketcher.Constraint("Equal", 2, 6))
sketch4.addConstraint(Sketcher.Constraint("Equal", 5, 7))
sketch4.addConstraint(Sketcher.Constraint("Equal", 4, 8))
sketch4.addConstraint(Sketcher.Constraint("Equal", 8, 9))
sketch4.addConstraint(Sketcher.Constraint("Equal", 7, 10))
sketch4.addConstraint(Sketcher.Constraint("Equal", 6, 11))
sketch4.addConstraint(Sketcher.Constraint("Equal", 10, 12))
sketch4.addConstraint(Sketcher.Constraint("Equal", 9, 13))
sketch4.addConstraint(Sketcher.Constraint("Equal", 11, 14))
sketch4.addConstraint(Sketcher.Constraint("Equal", 12, 15))
sketch4.addConstraint(Sketcher.Constraint("Equal", 13, 16))
sketch4.addConstraint(Sketcher.Constraint("Symmetric", 1, 3, 5, 3, -1))
sketch4.addConstraint(Sketcher.Constraint("Symmetric", 2, 3, 6, 3, -1))
sketch4.addConstraint(Sketcher.Constraint("Symmetric", 11, 3, 14, 3, -1))
sketch4.addConstraint(Sketcher.Constraint("Symmetric", 10, 3, 15, 3, -1))
sketch4.addConstraint(Sketcher.Constraint("Horizontal", 4, 3, 9, 3))
sketch4.addConstraint(Sketcher.Constraint("Horizontal", 7, 3, 10, 3))
sketch4.addConstraint(Sketcher.Constraint("Horizontal", 8, 3, 11, 3))
sketch4.addConstraint(Sketcher.Constraint("Horizontal", 5, 2, 6, 2))
sketch4.addConstraint(Sketcher.Constraint("Horizontal", 6, 2, 10, 2))
sketch4.addConstraint(Sketcher.Constraint("Horizontal", 4, 1, 12, 2))
sketch4.addConstraint(Sketcher.Constraint("Radius", 1, 5.0))
sketch4.addConstraint(Sketcher.Constraint("Radius", 2, 4.0))
sketch4.addConstraint(Sketcher.Constraint("Diameter", 3, 3.4))
sketch4.addConstraint(Sketcher.Constraint("DistanceX", -1, 1, 1, 3, 184.0))
sketch4.addConstraint(Sketcher.Constraint("DistanceY", -1, 1, 1, 3, 40.0))
sketch4.addConstraint(Sketcher.Constraint("DistanceY", -1, 1, 2, 3, 34.0))
sketch4.addConstraint(Sketcher.Constraint("DistanceX", -1, 1, 10, 3, 216.0))
sketch4.addConstraint(Sketcher.Constraint("DistanceX", 0, 3, 4, 3, 1.0))
sketch4.addConstraint(Sketcher.Constraint("DistanceY", 4, 3, 0, 3, 78.0))
sketch4.addConstraint(Sketcher.Constraint("DistanceX", 4, 3, 9, 3, 23.0))
sketch4.addConstraint(Sketcher.Constraint("DistanceY", -1, 1, 0, 3, 37.5))
sketch4.setExpression("Constraints[43]", "Params.sketch4_radius")
sketch4.setExpression("Constraints[44]", "Params.sketch4_radius2")
sketch4.setExpression("Constraints[45]", "Params.sketch4_diameter")
pad4 = doc.addObject("PartDesign::Pad", "Pad003")
body.addObject(pad4)
pad4.Profile = sketch4
pad4.setExpression("Length", "Params.pad4_length")
pad4.Reversed = True

doc.recompute()
